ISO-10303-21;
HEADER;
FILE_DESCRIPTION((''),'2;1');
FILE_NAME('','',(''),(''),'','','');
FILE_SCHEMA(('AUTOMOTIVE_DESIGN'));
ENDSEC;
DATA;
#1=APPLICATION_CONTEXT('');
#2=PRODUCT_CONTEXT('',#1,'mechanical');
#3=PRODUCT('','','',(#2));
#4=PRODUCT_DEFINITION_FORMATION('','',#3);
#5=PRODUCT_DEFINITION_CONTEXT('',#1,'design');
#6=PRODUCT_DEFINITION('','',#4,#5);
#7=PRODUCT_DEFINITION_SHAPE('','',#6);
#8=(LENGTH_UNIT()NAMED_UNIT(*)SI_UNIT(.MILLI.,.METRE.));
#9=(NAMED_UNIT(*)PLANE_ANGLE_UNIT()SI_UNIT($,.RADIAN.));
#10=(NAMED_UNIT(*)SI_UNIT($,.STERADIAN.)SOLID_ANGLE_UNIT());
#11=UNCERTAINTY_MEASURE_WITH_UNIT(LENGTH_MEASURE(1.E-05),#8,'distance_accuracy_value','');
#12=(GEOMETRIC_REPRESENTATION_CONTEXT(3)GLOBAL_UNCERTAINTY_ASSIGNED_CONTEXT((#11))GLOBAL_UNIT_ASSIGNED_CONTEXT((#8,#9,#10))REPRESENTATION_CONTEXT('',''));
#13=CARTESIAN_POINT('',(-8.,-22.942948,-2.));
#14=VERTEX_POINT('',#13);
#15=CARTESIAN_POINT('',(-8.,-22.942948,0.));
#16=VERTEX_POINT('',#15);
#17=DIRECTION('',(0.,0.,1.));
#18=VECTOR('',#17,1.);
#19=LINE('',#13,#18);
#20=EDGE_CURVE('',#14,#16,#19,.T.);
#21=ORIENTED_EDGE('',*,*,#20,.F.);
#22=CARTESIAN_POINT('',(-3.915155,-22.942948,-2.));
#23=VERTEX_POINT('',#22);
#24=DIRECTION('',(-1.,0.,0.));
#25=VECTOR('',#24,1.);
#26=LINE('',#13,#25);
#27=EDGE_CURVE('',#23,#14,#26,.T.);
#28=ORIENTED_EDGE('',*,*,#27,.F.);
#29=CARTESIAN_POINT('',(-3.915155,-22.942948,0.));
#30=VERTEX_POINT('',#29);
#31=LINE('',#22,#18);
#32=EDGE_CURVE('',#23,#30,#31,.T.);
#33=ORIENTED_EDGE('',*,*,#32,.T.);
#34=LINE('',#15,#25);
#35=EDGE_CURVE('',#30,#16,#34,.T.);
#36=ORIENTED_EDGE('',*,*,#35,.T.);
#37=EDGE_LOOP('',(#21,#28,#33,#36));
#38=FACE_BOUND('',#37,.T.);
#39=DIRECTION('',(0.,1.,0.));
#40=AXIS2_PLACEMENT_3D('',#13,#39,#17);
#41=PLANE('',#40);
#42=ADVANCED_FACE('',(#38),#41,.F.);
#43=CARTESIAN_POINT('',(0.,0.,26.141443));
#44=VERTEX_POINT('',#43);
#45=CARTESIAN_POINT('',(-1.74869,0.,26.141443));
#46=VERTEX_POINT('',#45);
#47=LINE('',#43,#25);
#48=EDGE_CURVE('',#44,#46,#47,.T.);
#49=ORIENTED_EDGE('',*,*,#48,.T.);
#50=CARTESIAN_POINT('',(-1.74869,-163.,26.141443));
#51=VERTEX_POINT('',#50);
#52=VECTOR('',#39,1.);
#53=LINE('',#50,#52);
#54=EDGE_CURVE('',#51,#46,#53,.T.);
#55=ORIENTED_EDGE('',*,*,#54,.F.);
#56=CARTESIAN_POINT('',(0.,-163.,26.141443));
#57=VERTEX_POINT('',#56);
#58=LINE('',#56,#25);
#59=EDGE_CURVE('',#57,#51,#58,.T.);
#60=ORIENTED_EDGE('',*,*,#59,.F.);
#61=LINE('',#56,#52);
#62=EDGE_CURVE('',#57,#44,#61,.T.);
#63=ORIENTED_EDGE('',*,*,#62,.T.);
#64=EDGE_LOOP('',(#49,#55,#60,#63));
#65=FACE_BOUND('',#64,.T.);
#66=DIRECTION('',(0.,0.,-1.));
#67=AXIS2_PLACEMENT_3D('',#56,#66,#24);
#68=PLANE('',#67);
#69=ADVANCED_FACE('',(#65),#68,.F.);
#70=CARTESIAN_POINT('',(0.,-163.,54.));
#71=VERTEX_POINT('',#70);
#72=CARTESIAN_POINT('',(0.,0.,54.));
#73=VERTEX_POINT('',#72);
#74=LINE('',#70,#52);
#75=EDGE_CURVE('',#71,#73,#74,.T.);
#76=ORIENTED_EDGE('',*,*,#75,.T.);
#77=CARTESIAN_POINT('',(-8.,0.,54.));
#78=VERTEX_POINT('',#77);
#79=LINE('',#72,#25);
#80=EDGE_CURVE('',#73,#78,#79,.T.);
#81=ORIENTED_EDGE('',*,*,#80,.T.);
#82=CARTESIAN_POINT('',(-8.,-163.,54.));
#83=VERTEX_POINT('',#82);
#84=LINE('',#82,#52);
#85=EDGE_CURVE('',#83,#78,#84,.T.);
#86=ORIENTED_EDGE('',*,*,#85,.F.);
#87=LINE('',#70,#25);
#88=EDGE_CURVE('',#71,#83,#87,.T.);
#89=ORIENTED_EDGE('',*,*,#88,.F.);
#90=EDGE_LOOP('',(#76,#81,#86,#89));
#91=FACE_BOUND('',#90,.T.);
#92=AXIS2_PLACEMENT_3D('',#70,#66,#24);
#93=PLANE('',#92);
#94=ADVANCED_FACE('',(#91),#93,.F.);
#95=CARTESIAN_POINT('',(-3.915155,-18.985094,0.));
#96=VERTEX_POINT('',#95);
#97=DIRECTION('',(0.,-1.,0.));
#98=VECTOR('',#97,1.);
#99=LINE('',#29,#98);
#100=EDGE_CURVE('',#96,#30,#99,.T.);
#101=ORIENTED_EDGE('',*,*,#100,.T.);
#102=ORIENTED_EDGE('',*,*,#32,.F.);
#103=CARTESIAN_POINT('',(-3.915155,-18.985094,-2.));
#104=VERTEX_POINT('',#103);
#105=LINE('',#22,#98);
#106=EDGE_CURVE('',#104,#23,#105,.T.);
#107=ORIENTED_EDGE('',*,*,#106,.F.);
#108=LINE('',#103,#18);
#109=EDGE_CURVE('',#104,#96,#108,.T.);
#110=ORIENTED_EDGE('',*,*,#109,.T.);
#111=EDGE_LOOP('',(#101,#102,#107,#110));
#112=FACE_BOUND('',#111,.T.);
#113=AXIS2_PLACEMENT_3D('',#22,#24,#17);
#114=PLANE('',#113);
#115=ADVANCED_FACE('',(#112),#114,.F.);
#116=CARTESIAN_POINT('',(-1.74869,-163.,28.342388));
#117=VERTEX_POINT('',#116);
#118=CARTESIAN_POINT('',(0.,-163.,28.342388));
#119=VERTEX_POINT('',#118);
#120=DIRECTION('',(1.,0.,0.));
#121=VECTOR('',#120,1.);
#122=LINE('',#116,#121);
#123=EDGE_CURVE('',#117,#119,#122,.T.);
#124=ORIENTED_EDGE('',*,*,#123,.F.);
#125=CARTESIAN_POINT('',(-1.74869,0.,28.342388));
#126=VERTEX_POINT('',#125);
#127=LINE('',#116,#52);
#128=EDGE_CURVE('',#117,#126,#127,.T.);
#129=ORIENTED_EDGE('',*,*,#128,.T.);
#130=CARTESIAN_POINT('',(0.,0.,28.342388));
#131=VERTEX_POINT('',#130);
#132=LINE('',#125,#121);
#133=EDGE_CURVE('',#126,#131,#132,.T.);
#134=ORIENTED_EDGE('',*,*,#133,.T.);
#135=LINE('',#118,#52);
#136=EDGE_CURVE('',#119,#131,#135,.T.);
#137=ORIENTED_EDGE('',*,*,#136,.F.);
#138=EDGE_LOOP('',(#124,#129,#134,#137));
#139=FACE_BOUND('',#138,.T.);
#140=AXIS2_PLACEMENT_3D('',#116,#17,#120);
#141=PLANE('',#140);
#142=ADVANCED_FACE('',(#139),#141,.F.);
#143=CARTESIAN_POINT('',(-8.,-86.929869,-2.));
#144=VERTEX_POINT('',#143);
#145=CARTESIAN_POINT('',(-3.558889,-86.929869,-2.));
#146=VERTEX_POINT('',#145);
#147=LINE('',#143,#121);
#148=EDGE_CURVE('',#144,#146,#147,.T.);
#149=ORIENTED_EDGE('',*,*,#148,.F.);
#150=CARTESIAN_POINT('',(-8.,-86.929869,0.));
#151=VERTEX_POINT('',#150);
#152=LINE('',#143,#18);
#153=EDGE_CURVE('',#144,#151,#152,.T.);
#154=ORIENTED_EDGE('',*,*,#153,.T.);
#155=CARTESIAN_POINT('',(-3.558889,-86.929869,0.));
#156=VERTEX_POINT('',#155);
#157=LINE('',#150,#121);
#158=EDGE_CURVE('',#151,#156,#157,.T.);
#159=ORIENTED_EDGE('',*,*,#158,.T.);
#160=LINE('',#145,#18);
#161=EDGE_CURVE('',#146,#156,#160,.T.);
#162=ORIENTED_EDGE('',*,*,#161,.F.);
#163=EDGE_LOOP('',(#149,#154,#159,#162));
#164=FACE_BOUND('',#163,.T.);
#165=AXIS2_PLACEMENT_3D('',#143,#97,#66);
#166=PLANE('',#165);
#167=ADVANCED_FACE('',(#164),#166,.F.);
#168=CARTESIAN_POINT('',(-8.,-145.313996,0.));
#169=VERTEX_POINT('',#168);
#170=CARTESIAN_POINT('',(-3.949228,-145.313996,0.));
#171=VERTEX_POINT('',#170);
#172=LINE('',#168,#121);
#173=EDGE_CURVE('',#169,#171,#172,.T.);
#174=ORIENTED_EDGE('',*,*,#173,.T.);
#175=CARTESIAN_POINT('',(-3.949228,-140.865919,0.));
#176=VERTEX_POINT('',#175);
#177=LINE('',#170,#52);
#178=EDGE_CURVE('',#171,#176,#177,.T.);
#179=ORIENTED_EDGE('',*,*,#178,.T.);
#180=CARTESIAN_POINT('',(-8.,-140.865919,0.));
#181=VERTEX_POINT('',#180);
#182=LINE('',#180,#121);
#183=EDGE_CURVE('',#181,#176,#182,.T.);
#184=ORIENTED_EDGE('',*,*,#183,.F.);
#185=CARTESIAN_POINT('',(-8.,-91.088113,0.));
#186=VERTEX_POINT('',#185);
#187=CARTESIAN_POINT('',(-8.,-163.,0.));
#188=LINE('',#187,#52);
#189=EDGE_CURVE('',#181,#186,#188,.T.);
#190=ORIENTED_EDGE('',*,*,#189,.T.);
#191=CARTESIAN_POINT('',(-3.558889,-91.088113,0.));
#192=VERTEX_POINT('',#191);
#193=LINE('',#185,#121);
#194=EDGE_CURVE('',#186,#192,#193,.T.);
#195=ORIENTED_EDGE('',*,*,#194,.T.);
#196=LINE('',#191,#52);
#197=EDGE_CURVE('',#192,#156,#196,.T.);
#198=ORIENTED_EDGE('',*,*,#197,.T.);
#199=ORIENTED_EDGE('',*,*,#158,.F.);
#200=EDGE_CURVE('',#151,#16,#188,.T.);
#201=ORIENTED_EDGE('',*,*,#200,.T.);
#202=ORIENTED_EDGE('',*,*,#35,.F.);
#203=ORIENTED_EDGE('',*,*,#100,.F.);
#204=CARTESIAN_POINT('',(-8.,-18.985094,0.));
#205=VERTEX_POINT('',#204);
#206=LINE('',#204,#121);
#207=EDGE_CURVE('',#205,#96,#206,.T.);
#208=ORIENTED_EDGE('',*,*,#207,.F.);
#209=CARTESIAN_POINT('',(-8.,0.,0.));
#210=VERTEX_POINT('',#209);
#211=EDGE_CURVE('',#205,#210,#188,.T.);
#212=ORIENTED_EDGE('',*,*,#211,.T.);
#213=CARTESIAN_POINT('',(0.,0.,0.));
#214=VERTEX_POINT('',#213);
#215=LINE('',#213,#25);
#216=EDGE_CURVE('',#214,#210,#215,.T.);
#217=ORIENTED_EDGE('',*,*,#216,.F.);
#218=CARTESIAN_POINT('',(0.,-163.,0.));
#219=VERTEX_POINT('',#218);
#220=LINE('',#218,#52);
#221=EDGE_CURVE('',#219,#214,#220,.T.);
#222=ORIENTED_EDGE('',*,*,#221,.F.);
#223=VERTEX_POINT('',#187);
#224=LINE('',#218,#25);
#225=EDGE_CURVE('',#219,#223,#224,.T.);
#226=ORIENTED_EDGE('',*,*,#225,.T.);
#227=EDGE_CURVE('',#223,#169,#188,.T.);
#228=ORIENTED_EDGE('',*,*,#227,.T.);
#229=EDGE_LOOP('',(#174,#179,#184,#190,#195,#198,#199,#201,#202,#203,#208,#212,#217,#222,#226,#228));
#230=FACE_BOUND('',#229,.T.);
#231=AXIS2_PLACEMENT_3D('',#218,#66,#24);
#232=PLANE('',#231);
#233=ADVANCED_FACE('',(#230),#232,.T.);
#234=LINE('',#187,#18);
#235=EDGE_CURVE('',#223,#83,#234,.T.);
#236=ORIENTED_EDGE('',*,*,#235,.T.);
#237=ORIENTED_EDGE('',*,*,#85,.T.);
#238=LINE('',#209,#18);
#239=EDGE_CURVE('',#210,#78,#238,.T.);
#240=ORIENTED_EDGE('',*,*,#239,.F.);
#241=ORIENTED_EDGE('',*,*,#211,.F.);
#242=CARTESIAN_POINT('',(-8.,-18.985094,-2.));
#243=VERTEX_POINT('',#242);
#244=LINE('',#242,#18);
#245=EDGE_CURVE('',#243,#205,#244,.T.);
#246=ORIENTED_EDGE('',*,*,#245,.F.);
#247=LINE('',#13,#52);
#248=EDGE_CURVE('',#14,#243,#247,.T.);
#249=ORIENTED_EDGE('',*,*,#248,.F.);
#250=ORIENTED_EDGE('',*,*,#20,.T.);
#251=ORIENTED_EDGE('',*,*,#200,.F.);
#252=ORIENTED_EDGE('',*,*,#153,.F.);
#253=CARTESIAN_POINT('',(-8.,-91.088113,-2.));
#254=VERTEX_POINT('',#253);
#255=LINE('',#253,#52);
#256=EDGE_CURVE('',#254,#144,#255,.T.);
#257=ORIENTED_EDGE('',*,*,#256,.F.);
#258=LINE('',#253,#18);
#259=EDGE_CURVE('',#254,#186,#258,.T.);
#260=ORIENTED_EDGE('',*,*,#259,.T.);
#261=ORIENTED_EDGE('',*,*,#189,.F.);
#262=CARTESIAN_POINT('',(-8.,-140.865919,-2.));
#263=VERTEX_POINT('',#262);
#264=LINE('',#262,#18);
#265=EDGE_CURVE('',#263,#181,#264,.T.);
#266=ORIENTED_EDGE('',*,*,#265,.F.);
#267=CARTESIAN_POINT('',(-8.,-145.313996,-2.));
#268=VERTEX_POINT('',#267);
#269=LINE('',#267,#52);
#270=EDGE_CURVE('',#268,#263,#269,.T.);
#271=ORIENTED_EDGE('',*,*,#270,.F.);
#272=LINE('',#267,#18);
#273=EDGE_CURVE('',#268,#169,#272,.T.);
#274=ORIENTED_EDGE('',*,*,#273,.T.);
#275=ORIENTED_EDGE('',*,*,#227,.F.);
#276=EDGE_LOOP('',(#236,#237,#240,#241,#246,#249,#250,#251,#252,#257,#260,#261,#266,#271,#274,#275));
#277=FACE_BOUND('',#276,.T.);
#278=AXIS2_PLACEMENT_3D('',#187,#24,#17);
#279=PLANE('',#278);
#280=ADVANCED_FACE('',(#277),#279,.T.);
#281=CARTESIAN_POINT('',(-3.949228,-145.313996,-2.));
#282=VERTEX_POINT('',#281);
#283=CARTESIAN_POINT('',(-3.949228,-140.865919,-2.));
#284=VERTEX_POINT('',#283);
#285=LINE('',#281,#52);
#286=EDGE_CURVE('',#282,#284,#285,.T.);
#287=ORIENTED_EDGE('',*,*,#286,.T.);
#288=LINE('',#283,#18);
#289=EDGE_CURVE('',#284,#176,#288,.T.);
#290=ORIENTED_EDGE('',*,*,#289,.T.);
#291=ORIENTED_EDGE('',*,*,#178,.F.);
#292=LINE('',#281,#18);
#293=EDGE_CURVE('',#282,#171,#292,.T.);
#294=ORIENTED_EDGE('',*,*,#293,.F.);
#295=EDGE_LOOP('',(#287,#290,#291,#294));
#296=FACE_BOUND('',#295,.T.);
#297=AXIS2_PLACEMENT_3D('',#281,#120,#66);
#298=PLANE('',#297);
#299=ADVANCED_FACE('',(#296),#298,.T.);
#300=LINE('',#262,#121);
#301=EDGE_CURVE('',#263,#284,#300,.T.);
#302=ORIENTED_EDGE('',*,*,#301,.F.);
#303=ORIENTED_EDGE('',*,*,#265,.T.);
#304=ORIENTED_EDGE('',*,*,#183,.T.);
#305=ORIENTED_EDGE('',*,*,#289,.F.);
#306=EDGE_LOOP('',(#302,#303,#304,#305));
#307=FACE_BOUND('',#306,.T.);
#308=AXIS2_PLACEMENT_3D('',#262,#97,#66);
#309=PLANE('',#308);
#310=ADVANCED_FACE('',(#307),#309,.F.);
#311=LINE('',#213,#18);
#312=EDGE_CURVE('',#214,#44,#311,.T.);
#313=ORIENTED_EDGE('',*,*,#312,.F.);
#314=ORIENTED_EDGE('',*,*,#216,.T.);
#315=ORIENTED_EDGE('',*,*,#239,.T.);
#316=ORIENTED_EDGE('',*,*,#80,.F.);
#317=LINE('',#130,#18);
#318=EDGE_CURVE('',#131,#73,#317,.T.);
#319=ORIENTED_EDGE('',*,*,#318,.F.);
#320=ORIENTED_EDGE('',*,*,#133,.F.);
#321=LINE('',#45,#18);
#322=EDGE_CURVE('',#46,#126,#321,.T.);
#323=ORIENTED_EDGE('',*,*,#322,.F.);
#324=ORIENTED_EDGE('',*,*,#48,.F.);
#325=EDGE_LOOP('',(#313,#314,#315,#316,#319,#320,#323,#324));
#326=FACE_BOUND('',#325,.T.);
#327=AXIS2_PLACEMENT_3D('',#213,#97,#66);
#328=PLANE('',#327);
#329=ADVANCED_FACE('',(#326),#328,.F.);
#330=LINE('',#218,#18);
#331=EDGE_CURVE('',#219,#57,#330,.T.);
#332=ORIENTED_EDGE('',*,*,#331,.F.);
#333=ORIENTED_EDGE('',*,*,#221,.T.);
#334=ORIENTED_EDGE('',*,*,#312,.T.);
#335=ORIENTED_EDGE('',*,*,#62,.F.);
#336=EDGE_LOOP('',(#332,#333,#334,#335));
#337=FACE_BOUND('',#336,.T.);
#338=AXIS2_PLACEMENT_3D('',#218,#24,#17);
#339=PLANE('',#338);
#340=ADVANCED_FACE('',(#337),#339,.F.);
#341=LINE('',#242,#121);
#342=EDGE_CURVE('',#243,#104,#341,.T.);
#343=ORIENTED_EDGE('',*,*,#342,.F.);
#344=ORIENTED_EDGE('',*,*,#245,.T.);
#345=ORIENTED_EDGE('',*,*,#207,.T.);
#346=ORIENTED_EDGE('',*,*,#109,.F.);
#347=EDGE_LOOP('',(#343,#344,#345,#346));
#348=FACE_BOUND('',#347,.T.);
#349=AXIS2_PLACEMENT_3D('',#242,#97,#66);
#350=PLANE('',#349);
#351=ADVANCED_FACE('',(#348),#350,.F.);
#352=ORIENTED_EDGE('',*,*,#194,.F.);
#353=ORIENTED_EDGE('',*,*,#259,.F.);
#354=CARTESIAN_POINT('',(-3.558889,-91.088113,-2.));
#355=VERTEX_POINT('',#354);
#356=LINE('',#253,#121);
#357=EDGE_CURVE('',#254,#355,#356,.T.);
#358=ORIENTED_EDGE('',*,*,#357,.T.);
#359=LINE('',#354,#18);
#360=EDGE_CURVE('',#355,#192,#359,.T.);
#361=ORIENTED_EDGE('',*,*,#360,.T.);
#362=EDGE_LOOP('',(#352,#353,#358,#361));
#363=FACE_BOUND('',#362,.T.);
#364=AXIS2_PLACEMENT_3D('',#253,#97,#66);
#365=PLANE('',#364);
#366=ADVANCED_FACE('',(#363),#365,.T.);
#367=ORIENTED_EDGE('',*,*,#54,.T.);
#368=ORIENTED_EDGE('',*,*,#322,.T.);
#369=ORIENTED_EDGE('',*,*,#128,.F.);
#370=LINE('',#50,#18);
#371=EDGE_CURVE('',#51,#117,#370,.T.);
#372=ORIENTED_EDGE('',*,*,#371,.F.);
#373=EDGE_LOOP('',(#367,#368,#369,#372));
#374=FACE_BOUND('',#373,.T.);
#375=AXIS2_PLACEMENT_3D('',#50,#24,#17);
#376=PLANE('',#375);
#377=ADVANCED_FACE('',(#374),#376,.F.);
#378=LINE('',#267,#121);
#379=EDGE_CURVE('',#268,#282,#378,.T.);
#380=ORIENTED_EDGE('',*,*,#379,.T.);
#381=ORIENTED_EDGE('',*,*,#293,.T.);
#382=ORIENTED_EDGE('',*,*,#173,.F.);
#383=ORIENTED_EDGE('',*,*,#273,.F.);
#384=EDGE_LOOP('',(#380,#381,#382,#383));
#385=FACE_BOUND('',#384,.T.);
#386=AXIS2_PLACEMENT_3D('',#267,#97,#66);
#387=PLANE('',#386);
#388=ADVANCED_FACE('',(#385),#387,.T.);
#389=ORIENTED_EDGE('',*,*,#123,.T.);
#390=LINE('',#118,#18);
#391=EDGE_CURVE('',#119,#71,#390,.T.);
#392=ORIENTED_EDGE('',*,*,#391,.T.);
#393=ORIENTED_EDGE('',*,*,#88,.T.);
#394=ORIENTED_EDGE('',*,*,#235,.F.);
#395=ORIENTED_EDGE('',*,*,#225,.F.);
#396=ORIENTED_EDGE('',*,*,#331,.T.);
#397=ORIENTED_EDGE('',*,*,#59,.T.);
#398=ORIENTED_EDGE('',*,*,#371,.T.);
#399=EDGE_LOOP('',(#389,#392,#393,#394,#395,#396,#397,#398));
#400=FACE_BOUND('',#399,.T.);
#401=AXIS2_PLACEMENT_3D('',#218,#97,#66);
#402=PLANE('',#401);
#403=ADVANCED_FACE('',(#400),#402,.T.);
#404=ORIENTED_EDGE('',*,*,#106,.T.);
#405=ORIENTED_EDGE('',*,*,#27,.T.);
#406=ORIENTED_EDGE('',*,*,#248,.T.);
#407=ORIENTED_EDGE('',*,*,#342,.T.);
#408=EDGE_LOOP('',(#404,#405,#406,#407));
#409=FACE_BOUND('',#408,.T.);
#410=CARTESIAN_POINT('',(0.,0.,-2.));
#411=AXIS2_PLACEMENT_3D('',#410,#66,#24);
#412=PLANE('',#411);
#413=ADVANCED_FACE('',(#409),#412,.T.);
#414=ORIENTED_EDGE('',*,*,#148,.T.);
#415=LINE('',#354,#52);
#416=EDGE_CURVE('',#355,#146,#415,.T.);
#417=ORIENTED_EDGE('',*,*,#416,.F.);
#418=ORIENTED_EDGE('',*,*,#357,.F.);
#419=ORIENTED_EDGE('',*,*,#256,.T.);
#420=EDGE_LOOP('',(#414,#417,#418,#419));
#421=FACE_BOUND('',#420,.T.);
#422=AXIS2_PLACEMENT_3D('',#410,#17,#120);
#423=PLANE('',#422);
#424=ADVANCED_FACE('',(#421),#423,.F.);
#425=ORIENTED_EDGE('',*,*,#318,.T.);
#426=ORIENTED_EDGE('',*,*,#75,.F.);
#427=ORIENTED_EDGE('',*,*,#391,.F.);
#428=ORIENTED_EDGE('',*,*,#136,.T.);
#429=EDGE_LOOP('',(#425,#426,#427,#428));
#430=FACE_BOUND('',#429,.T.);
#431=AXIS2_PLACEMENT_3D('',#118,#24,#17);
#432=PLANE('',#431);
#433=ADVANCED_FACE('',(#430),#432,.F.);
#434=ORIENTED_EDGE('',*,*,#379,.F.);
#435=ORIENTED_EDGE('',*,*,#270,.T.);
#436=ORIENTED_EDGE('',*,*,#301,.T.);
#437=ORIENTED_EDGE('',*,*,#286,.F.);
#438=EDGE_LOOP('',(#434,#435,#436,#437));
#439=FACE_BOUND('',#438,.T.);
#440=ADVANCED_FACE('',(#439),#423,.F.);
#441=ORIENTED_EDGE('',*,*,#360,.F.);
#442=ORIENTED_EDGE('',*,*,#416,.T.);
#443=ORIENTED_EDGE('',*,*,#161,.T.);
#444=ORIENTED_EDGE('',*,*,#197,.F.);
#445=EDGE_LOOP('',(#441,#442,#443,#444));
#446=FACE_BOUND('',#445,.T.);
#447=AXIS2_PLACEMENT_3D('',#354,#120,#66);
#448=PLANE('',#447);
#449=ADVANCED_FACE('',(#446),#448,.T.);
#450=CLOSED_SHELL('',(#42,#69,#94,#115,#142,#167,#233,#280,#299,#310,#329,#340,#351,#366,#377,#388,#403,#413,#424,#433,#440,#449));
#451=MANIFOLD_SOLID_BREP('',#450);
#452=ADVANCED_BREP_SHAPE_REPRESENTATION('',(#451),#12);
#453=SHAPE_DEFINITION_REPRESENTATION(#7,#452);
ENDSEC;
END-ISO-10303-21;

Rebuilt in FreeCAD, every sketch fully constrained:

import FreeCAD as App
import Part
import Sketcher
from FreeCAD import Vector
Q = App.Units.Quantity


def add_polygon(sketch, points):
    """Adds a closed chain of lines whose ends are joined by coincident constraints."""
    first, n = sketch.GeometryCount, len(points)
    for a, b in zip(points, points[1:] + points[:1]):
        sketch.addGeometry(Part.LineSegment(App.Vector(*a, 0), App.Vector(*b, 0)), False)
    for i in range(n):
        sketch.addConstraint(Sketcher.Constraint("Coincident", first + i, 2, first + (i + 1) % n, 1))

doc = App.newDocument("Part")
params = doc.addObject("Spreadsheet::Sheet", "Params")
for row, (alias, value) in enumerate([
    ("sketch1_width", "8 mm"),
    ("sketch1_height", "54 mm"),
    ("pad1_length", "163 mm"),
    ("pad2_length", "2 mm"),
    ("pad3_length", "2 mm"),
    ("pad4_length", "2 mm"),
], start=1):
    params.set(f"A{row}", alias)
    params.set(f"B{row}", "=" + value)
    params.setAlias(f"B{row}", alias)

body = doc.addObject("PartDesign::Body", "Body")

sketch1 = body.newObject("Sketcher::SketchObject", "Sketch")
sketch1.AttachmentSupport = (doc.getObject("XZ_Plane"), [""])
sketch1.MapMode = "FlatFace"
add_polygon(sketch1, [(-1.7, 26.1), (0, 26.1), (0, 0), (-8, 0), (-8, 54), (0, 54), (0, 28.3), (-1.7, 28.3)])
sketch1.addConstraint([
    Sketcher.Constraint("Horizontal", 0),
    Sketcher.Constraint("Vertical", 1),
    Sketcher.Constraint("Horizontal", 2),
    Sketcher.Constraint("Vertical", 3),
    Sketcher.Constraint("Horizontal", 4),
    Sketcher.Constraint("Vertical", 5),
    Sketcher.Constraint("Horizontal", 6),
    Sketcher.Constraint("Vertical", 7),
    Sketcher.Constraint("Coincident", 1, 2, -1, 1),
    Sketcher.Constraint("PointOnObject", 4, 2, -2),
    Sketcher.Constraint("DistanceX", 2, 2, 2, 1, Q("8 mm")),
    Sketcher.Constraint("DistanceY", 3, 1, 3, 2, Q("54 mm")),
    Sketcher.Constraint("DistanceX", 0, 1, 0, 2, Q("1.74869 mm")),
    Sketcher.Constraint("DistanceY", 1, 2, 1, 1, Q("26.141443 mm")),
    Sketcher.Constraint("DistanceY", 5, 2, 5, 1, Q("25.657612 mm")),
])
sketch1.setExpression("Constraints[18]", "Params.sketch1_width")
sketch1.setExpression("Constraints[19]", "Params.sketch1_height")
pad1 = body.newObject("PartDesign::Pad", "Pad")
pad1.Profile = sketch1
pad1.setExpression("Length", "Params.pad1_length")

sketch2 = body.newObject("Sketcher::SketchObject", "Sketch001")
sketch2.AttachmentSupport = (doc.getObject("XY_Plane"), [""])
sketch2.MapMode = "FlatFace"
add_polygon(sketch2, [(-3.9, -19), (-3.9, -22.9), (-8, -22.9), (-8, -19)])
sketch2.addConstraint([
    Sketcher.Constraint("Vertical", 0),
    Sketcher.Constraint("Horizontal", 1),
    Sketcher.Constraint("Vertical", 2),
    Sketcher.Constraint("Horizontal", 3),
    Sketcher.Constraint("DistanceX", 1, 2, -1, 1, Q("8 mm")),
    Sketcher.Constraint("DistanceX", 1, 2, 1, 1, Q("4.084845 mm")),
    Sketcher.Constraint("DistanceY", 0, 2, 0, 1, Q("3.957855 mm")),
    Sketcher.Constraint("DistanceY", 0, 2, -1, 1, Q("22.942948 mm")),
])
pad2 = body.newObject("PartDesign::Pad", "Pad001")
pad2.Profile = sketch2
pad2.setExpression("Length", "Params.pad2_length")
pad2.Reversed = True

sketch3 = body.newObject("Sketcher::SketchObject", "Sketch002")
sketch3.AttachmentSupport = (doc.getObject("XY_Plane"), [""])
sketch3.MapMode = "FlatFace"
add_polygon(sketch3, [(-3.6, -86.9), (-3.6, -91.1), (-8, -91.1), (-8, -86.9)])
sketch3.addConstraint([
    Sketcher.Constraint("Vertical", 0),
    Sketcher.Constraint("Horizontal", 1),
    Sketcher.Constraint("Vertical", 2),
    Sketcher.Constraint("Horizontal", 3),
    Sketcher.Constraint("DistanceX", 1, 2, -1, 1, Q("8 mm")),
    Sketcher.Constraint("DistanceX", 1, 2, 1, 1, Q("4.441111 mm")),
    Sketcher.Constraint("DistanceY", 0, 2, 0, 1, Q("4.158244 mm")),
    Sketcher.Constraint("DistanceY", 2, 2, -1, 1, Q("86.929869 mm")),
])
pad3 = body.newObject("PartDesign::Pad", "Pad002")
pad3.Profile = sketch3
pad3.setExpression("Length", "Params.pad3_length")
pad3.Reversed = True

sketch4 = body.newObject("Sketcher::SketchObject", "Sketch003")
sketch4.AttachmentSupport = (doc.getObject("XY_Plane"), [""])
sketch4.MapMode = "FlatFace"
add_polygon(sketch4, [(-3.9, -140.9), (-3.9, -145.3), (-8, -145.3), (-8, -140.9)])
sketch4.addConstraint([
    Sketcher.Constraint("Vertical", 0),
    Sketcher.Constraint("Horizontal", 1),
    Sketcher.Constraint("Vertical", 2),
    Sketcher.Constraint("Horizontal", 3),
    Sketcher.Constraint("DistanceX", 1, 2, -1, 1, Q("8 mm")),
    Sketcher.Constraint("DistanceX", 1, 2, 1, 1, Q("4.050772 mm")),
    Sketcher.Constraint("DistanceY", 0, 2, 0, 1, Q("4.448078 mm")),
    Sketcher.Constraint("DistanceY", 2, 2, -1, 1, Q("140.865919 mm")),
])
pad4 = body.newObject("PartDesign::Pad", "Pad003")
pad4.Profile = sketch4
pad4.setExpression("Length", "Params.pad4_length")
pad4.Reversed = True

doc.recompute()
